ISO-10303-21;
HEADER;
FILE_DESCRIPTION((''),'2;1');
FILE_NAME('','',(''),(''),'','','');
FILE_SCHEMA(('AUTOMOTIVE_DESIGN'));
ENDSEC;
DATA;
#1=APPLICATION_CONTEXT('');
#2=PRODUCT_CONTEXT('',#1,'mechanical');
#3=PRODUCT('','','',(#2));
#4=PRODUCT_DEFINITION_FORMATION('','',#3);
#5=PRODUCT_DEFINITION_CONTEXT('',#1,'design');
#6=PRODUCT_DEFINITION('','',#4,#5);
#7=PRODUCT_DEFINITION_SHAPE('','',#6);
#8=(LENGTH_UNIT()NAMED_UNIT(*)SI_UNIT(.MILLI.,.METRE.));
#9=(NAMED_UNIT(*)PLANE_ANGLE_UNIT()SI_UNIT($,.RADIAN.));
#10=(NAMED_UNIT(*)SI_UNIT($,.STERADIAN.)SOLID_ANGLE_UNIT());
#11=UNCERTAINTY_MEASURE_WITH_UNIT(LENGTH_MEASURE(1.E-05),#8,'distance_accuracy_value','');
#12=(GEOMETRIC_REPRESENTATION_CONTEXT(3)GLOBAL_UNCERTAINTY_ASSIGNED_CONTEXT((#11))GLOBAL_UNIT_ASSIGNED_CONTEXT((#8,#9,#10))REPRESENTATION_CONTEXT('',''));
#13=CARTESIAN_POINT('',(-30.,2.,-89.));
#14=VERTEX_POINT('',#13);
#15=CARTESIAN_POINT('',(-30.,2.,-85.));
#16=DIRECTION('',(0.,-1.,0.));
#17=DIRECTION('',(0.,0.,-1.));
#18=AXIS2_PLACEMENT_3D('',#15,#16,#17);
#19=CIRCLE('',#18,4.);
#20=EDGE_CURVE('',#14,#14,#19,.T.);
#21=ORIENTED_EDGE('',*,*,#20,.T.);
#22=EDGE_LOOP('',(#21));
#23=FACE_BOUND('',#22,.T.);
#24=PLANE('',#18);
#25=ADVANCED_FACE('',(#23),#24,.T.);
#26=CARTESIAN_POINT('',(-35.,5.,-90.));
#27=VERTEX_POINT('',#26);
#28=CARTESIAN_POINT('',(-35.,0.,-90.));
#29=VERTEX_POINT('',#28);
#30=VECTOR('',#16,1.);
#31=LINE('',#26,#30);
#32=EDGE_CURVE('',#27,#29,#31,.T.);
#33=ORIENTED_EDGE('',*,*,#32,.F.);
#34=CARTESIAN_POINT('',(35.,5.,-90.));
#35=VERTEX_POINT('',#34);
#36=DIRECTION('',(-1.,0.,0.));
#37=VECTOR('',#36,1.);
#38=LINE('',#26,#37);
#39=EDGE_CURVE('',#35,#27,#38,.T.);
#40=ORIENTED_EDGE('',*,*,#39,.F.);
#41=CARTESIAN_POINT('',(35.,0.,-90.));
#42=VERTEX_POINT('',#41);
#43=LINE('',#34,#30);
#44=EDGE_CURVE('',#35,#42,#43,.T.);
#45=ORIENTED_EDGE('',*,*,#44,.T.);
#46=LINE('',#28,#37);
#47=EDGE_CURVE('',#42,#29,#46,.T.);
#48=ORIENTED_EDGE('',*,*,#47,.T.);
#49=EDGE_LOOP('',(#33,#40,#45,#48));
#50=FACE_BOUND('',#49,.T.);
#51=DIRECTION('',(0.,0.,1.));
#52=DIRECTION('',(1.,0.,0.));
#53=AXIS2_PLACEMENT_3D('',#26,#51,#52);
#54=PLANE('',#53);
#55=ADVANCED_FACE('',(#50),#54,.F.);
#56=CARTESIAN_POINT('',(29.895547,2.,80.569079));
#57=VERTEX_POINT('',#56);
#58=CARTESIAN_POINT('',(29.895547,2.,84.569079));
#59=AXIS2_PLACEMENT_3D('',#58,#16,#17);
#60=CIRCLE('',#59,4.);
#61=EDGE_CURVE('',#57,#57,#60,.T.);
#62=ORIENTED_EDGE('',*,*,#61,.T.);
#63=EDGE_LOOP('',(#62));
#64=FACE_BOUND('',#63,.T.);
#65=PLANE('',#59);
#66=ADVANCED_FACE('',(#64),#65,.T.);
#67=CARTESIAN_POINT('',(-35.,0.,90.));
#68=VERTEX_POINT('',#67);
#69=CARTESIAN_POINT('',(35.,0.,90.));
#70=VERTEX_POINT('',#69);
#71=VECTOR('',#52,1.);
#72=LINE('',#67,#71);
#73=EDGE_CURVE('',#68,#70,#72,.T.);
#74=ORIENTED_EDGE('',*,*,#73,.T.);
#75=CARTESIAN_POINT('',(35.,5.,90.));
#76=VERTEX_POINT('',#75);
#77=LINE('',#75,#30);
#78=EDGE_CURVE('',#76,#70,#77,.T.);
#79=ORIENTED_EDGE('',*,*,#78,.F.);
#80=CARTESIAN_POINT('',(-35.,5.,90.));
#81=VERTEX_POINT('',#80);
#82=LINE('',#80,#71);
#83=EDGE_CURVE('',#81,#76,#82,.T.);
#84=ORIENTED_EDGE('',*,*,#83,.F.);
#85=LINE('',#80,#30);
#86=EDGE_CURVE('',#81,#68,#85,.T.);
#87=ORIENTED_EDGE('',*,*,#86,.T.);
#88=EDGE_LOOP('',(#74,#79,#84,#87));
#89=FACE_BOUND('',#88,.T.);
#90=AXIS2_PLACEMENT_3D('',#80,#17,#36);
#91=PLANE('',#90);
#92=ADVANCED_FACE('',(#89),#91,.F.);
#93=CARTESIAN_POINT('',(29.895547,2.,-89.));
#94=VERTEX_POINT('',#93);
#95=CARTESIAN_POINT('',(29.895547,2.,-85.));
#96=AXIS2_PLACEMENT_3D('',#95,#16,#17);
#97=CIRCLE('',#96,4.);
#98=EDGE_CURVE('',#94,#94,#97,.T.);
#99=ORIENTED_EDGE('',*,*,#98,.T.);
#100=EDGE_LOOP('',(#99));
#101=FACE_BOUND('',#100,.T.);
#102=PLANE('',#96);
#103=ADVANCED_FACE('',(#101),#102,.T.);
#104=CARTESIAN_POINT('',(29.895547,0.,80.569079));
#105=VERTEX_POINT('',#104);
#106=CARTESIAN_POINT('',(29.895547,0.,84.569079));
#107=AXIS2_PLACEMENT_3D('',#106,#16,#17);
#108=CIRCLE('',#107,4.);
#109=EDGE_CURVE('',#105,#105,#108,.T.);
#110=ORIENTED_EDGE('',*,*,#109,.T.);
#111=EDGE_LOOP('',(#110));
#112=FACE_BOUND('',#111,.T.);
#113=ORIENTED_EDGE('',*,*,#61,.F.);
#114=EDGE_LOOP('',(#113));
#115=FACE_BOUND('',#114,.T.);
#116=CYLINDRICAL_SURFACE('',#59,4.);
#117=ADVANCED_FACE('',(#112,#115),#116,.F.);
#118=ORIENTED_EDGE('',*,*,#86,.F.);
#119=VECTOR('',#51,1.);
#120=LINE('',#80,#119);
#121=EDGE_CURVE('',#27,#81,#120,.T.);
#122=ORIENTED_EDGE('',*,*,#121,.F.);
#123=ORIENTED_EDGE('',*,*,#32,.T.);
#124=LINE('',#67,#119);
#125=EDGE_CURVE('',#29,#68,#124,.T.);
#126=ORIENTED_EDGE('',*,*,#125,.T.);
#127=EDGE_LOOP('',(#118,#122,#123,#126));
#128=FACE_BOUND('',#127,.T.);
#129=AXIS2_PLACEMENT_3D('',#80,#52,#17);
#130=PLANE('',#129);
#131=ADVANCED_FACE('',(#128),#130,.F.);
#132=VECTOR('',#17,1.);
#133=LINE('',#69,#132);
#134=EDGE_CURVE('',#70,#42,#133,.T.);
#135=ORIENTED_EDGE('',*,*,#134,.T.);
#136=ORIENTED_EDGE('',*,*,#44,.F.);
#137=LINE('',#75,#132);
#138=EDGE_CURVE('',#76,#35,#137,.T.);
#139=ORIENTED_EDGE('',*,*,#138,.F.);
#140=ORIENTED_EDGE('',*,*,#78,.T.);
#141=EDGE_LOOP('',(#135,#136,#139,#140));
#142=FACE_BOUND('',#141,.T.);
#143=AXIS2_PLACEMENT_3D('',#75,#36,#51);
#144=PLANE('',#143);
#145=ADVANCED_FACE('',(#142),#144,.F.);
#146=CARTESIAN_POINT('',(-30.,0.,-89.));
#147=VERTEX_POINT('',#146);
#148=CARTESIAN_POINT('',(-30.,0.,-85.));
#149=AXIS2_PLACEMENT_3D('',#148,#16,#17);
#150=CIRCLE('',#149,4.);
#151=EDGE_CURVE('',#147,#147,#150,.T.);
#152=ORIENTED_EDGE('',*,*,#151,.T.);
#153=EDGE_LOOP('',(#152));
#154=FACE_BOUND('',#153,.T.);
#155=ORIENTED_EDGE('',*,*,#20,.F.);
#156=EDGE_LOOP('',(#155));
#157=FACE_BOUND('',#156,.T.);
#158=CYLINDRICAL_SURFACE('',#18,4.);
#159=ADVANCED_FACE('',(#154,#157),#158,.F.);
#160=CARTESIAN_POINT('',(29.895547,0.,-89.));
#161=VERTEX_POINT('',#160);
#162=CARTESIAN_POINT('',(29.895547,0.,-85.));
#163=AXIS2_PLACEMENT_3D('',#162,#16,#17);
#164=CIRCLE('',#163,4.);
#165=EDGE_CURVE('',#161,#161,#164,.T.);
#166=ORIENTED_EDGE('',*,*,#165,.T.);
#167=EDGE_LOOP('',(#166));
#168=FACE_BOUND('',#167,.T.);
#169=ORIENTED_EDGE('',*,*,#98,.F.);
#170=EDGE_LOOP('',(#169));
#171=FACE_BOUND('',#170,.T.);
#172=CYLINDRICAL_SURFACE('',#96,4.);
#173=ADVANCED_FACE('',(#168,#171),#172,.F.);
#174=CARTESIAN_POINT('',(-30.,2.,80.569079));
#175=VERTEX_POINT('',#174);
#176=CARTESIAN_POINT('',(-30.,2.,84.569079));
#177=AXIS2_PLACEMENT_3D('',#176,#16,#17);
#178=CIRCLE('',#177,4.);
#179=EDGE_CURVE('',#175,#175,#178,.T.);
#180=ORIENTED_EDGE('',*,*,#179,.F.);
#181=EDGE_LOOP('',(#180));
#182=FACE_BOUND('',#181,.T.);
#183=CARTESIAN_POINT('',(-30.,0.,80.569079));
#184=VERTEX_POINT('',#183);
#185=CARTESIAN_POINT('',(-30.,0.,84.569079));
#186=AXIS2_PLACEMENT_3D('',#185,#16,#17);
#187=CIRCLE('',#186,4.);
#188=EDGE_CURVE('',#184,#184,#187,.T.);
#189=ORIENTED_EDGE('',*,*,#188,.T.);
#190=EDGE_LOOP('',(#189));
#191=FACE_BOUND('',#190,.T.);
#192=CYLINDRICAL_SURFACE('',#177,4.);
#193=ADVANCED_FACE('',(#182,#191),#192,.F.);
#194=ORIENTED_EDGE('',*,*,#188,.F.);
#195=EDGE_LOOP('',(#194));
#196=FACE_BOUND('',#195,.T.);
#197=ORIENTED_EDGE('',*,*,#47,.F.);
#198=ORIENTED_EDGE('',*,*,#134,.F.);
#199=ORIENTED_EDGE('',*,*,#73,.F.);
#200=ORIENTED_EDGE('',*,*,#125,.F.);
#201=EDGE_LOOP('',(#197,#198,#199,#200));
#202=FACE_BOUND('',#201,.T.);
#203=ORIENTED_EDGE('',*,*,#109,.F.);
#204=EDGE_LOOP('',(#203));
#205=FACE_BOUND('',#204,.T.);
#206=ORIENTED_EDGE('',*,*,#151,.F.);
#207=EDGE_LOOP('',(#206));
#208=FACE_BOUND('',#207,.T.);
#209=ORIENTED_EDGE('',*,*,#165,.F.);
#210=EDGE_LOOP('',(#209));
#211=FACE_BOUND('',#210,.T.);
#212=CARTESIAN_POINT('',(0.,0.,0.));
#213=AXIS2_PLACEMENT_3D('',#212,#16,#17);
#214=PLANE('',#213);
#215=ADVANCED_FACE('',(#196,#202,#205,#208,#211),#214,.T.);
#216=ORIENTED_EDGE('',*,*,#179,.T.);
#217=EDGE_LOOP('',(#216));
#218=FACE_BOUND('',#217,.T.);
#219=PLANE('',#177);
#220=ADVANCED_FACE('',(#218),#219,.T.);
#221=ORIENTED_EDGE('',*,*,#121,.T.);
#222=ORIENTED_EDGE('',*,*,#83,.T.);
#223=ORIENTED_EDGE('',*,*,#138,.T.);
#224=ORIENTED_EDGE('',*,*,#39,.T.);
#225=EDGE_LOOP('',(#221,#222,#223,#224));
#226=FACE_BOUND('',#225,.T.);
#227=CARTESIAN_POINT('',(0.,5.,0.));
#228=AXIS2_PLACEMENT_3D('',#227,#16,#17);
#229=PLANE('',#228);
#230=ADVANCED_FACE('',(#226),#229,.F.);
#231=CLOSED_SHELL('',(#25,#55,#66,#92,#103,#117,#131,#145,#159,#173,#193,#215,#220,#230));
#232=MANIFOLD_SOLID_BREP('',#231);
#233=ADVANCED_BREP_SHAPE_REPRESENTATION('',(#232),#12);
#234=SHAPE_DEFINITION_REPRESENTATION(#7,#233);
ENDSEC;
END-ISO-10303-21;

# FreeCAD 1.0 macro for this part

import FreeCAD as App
import Part
import Sketcher
from FreeCAD import Vector
Q = App.Units.Quantity


def add_polygon(sketch, points):
    """Adds a closed chain of lines whose ends are joined by coincident constraints."""
    first, n = sketch.GeometryCount, len(points)
    for a, b in zip(points, points[1:] + points[:1]):
        sketch.addGeometry(Part.LineSegment(App.Vector(*a, 0), App.Vector(*b, 0)), False)
    for i in range(n):
        sketch.addConstraint(Sketcher.Constraint("Coincident", first + i, 2, first + (i + 1) % n, 1))

doc = App.newDocument("Part")
params = doc.addObject("Spreadsheet::Sheet", "Params")
for row, (alias, value) in enumerate([
    ("sketch1_width", "70 mm"),
    ("sketch1_height", "180 mm"),
    ("pad1_length", "5 mm"),
    ("sketch2_diameter", "8 mm"),
    ("pocket1_length", "2 mm"),
], start=1):
    params.set(f"A{row}", alias)
    params.set(f"B{row}", "=" + value)
    params.setAlias(f"B{row}", alias)

body = doc.addObject("PartDesign::Body", "Body")

# Sketch on XZ plane
sketch1 = body.newObject("Sketcher::SketchObject", "Sketch")
sketch1.AttachmentSupport = (doc.getObject("XZ_Plane"), [""])
sketch1.MapMode = "FlatFace"
add_polygon(sketch1, [(-35, -90), (-35, 90), (35, 90), (35, -90)])  # lines 0-3
sketch1.addConstraint(Sketcher.Constraint("Vertical", 0))
sketch1.addConstraint(Sketcher.Constraint("Horizontal", 1))
sketch1.addConstraint(Sketcher.Constraint("Vertical", 2))
sketch1.addConstraint(Sketcher.Constraint("Horizontal", 3))
sketch1.addConstraint(Sketcher.Constraint("Symmetric", 0, 2, 2, 2, -1, 1))
sketch1.addConstraint(Sketcher.Constraint("DistanceX", 1, 1, 1, 2, Q("70 mm")))
sketch1.addConstraint(Sketcher.Constraint("DistanceY", 0, 1, 0, 2, Q("180 mm")))
sketch1.setExpression("Constraints[9]", "Params.sketch1_width")
sketch1.setExpression("Constraints[10]", "Params.sketch1_height")
pad1 = body.newObject("PartDesign::Pad", "Pad")
pad1.Profile = sketch1
pad1.setExpression("Length", "Params.pad1_length")
pad1.Reversed = True

# Sketch on XZ plane
sketch2 = body.newObject("Sketcher::SketchObject", "Sketch001")
sketch2.AttachmentSupport = (doc.getObject("XZ_Plane"), [""])
sketch2.MapMode = "FlatFace"
sketch2.addGeometry(Part.Circle(Vector(-30, 84.6, 0), Vector(0, 0, 1), 4), False)
sketch2.addGeometry(Part.Circle(Vector(29.9, 84.6, 0), Vector(0, 0, 1), 4), False)
sketch2.addGeometry(Part.Circle(Vector(-30, -85, 0), Vector(0, 0, 1), 4), False)
sketch2.addGeometry(Part.Circle(Vector(29.9, -85, 0), Vector(0, 0, 1), 4), False)
sketch2.addConstraint(Sketcher.Constraint("Equal", 0, 1))
sketch2.addConstraint(Sketcher.Constraint("Equal", 1, 2))
sketch2.addConstraint(Sketcher.Constraint("Equal", 2, 3))
sketch2.addConstraint(Sketcher.Constraint("Horizontal", 0, 3, 1, 3))
sketch2.addConstraint(Sketcher.Constraint("Horizontal", 2, 3, 3, 3))
sketch2.addConstraint(Sketcher.Constraint("Vertical", 0, 3, 2, 3))
sketch2.addConstraint(Sketcher.Constraint("Vertical", 1, 3, 3, 3))
sketch2.addConstraint(Sketcher.Constraint("Diameter", 0, Q("8 mm")))
sketch2.addConstraint(Sketcher.Constraint("DistanceX", 0, 3, -1, 1, Q("30 mm")))
sketch2.addConstraint(Sketcher.Constraint("DistanceY", 2, 3, -1, 1, Q("85 mm")))
sketch2.addConstraint(Sketcher.Constraint("DistanceY", -1, 1, 0, 3, Q("84.569079 mm")))
sketch2.addConstraint(Sketcher.Constraint("DistanceX", -1, 1, 1, 3, Q("29.895547 mm")))
sketch2.setExpression("Constraints[7]", "Params.sketch2_diameter")
pocket1 = body.newObject("PartDesign::Pocket", "Pocket")
pocket1.Profile = sketch2
pocket1.setExpression("Length", "Params.pocket1_length")

doc.recompute()
